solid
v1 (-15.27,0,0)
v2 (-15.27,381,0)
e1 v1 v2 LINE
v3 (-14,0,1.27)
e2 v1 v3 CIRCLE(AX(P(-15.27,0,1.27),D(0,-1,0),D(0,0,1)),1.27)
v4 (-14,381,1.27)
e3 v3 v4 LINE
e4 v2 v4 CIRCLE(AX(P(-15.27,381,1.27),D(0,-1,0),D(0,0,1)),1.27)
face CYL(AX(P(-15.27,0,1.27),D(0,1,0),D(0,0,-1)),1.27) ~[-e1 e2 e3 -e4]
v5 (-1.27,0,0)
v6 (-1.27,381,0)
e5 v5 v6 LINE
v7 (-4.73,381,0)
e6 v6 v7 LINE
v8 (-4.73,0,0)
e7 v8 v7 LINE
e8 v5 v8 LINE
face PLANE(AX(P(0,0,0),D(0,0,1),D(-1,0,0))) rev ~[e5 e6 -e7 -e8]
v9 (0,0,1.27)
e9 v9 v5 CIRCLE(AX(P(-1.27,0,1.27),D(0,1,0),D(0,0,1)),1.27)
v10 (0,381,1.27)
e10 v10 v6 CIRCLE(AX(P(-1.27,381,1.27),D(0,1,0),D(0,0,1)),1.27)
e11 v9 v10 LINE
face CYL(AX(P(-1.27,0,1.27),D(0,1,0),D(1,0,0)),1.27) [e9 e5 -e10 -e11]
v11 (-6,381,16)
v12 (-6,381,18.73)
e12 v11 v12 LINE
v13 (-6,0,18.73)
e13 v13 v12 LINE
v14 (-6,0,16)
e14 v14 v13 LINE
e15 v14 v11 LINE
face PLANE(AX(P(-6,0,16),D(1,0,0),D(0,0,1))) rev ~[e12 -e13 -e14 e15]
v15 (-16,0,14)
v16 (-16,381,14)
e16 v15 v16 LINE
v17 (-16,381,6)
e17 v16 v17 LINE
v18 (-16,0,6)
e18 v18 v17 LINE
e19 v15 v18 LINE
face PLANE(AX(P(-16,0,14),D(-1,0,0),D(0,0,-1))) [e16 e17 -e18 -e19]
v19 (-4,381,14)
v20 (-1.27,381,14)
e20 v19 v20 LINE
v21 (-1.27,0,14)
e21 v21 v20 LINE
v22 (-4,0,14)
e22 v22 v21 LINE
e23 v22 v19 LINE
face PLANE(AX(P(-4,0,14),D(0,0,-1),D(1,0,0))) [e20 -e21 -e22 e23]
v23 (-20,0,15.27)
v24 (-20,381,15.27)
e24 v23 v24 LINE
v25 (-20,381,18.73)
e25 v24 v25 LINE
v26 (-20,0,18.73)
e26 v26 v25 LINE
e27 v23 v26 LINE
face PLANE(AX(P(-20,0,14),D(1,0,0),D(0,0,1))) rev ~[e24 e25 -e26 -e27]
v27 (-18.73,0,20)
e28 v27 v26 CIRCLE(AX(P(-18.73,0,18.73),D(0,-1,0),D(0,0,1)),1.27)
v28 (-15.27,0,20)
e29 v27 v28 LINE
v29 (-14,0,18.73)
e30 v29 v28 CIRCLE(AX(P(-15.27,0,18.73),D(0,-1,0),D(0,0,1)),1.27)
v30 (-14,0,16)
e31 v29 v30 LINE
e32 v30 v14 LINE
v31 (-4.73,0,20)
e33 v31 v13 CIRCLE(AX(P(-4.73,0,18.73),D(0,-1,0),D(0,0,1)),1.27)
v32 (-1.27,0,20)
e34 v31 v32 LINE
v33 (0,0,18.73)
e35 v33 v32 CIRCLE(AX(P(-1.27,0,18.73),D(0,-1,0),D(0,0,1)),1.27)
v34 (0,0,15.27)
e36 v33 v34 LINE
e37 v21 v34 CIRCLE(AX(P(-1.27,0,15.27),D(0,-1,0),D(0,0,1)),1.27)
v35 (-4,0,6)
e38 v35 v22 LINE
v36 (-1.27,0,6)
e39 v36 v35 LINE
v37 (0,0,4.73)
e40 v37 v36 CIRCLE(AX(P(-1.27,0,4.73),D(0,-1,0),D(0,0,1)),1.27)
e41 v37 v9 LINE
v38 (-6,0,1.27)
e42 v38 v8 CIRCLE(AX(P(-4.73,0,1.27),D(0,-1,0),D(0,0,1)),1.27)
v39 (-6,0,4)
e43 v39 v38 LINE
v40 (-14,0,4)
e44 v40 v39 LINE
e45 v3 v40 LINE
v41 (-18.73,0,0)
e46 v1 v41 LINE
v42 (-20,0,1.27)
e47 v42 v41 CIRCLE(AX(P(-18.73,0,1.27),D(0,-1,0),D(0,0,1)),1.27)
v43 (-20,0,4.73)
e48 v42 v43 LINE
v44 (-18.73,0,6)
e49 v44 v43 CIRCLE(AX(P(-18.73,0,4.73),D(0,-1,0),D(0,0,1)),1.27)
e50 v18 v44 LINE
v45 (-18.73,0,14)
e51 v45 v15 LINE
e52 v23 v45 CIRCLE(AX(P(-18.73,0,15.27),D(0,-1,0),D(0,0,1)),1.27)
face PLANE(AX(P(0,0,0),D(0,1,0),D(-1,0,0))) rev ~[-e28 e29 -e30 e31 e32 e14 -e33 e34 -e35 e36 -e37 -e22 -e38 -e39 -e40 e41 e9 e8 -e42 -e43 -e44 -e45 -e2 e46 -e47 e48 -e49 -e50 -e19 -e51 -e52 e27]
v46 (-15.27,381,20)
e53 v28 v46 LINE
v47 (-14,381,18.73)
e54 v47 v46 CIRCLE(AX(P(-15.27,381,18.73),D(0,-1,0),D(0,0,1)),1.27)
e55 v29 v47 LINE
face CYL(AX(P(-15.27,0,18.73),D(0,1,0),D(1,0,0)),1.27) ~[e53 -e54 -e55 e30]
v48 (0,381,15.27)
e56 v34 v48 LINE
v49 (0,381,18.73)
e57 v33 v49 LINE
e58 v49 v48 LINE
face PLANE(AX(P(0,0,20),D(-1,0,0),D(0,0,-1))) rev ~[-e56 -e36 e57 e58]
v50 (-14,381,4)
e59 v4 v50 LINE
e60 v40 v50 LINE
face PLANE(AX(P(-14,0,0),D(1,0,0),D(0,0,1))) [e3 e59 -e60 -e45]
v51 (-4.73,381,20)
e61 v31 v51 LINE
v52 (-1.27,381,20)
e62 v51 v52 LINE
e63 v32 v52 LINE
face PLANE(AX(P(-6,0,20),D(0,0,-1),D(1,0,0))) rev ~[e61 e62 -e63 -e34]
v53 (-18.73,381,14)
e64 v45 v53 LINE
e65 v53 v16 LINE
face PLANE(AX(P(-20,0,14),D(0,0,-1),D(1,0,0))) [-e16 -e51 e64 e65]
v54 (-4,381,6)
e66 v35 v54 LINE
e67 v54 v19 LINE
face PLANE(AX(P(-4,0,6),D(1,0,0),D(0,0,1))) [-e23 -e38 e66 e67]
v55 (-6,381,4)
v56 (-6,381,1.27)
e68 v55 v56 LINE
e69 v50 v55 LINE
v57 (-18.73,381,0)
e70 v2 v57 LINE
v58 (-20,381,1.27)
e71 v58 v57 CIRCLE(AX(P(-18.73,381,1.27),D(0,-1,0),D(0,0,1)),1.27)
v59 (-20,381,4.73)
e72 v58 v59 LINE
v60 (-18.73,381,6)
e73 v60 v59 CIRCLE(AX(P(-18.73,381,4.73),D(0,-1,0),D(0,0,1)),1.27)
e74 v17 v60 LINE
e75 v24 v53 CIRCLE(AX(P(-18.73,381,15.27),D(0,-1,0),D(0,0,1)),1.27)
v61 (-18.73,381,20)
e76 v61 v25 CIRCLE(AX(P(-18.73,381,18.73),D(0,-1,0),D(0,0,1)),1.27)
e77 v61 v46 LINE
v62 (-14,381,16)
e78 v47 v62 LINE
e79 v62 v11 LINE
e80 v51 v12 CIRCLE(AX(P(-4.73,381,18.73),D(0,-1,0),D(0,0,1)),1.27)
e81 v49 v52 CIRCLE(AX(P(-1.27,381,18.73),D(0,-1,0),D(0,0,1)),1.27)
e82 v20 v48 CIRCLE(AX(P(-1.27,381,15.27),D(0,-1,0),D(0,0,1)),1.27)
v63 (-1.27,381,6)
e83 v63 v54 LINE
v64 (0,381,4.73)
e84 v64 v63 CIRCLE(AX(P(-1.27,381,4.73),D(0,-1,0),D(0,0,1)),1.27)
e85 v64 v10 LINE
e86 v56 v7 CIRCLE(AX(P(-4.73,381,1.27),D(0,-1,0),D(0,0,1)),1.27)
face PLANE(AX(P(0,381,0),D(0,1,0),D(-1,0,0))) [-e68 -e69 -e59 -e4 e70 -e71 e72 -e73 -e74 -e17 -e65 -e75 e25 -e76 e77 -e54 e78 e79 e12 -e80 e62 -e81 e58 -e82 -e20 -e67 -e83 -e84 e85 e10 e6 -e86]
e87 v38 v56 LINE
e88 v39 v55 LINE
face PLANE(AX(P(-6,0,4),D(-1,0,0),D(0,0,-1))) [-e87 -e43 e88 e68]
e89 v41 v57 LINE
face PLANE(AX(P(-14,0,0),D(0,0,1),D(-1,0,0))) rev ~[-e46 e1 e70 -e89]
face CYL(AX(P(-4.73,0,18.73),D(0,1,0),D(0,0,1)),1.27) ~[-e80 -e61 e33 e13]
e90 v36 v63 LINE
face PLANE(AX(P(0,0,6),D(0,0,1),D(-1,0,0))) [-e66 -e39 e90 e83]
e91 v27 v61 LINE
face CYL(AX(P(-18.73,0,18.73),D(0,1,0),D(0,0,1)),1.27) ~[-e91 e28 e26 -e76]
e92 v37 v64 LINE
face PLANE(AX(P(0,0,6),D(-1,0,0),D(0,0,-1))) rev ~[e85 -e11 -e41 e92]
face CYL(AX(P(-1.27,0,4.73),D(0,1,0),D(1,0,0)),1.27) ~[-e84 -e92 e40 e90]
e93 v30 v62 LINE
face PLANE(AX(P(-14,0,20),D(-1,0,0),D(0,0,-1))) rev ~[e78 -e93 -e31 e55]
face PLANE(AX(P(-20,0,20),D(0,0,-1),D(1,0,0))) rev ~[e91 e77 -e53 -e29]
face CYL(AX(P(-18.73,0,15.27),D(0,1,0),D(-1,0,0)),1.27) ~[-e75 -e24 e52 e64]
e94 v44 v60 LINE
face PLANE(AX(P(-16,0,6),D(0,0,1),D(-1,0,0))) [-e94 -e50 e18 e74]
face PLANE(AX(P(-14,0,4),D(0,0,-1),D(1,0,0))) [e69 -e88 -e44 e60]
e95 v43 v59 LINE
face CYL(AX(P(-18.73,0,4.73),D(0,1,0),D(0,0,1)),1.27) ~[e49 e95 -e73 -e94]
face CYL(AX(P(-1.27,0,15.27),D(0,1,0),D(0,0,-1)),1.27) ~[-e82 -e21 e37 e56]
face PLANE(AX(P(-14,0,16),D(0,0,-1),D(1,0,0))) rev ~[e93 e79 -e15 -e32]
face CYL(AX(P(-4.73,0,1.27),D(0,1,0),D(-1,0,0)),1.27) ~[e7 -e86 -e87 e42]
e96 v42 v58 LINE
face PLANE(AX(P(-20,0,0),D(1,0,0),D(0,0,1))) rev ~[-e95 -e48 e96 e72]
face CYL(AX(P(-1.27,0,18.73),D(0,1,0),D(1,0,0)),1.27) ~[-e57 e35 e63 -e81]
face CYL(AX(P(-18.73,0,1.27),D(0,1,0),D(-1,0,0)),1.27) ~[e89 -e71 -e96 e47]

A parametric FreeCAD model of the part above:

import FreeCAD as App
import Part
import Sketcher

V = App.Vector


def edges_at(feature, points):
    """Names of the edges that pass closest to the given points."""
    edges = feature.Shape.Edges
    near = lambda p: min(range(len(edges)), key=lambda i: edges[i].distToShape(Part.Vertex(*p))[0])
    return sorted({f"Edge{near(p) + 1}" for p in points})


def add_polygon(sketch, points):
    """Adds a closed chain of lines whose ends are joined by coincident constraints."""
    first, n = sketch.GeometryCount, len(points)
    for a, b in zip(points, points[1:] + points[:1]):
        sketch.addGeometry(Part.LineSegment(App.Vector(*a, 0), App.Vector(*b, 0)), False)
    for i in range(n):
        sketch.addConstraint(Sketcher.Constraint("Coincident", first + i, 2, first + (i + 1) % n, 1))

doc = App.newDocument("Part")
params = doc.addObject("Spreadsheet::Sheet", "Params")
for row, (alias, value) in enumerate([
    ("sketch1_width", "6 mm"),
    ("sketch1_width2", "8 mm"),
    ("sketch1_width3", "4 mm"),
    ("pad1_length", "381 mm"),
    ("fillet_radius", "1.27 mm"),
], start=1):
    params.set(f"A{row}", alias)
    params.set(f"B{row}", "=" + value)
    params.setAlias(f"B{row}", alias)

body = doc.addObject("PartDesign::Body", "Body")

# Sketch on XZ plane
sketch1 = body.newObject("Sketcher::SketchObject", "Sketch")
sketch1.AttachmentSupport = (doc.getObject("XZ_Plane"), [""])
sketch1.MapMode = "FlatFace"
add_polygon(sketch1, [(0, 6), (0, 0), (-6, 0), (-6, 4), (-14, 4), (-14, 0), (-20, 0), (-20, 6), (-16, 6), (-16, 14), (-20, 14), (-20, 20), (-14, 20), (-14, 16), (-6, 16), (-6, 20), (0, 20), (0, 14), (-4, 14), (-4, 6)])  # lines 0-19
sketch1.addConstraint([
    Sketcher.Constraint("Vertical", 0),
    Sketcher.Constraint("Horizontal", 1),
    Sketcher.Constraint("Vertical", 2),
    Sketcher.Constraint("Horizontal", 3),
    Sketcher.Constraint("Vertical", 4),
    Sketcher.Constraint("Horizontal", 5),
    Sketcher.Constraint("Vertical", 6),
    Sketcher.Constraint("Horizontal", 7),
    Sketcher.Constraint("Vertical", 8),
    Sketcher.Constraint("Horizontal", 9),
    Sketcher.Constraint("Vertical", 10),
    Sketcher.Constraint("Horizontal", 11),
    Sketcher.Constraint("Vertical", 12),
    Sketcher.Constraint("Horizontal", 13),
    Sketcher.Constraint("Vertical", 14),
    Sketcher.Constraint("Horizontal", 15),
    Sketcher.Constraint("Vertical", 16),
    Sketcher.Constraint("Horizontal", 17),
    Sketcher.Constraint("Vertical", 18),
    Sketcher.Constraint("Horizontal", 19),
    Sketcher.Constraint("Coincident", 0, 2, -1, 1),
    Sketcher.Constraint("PointOnObject", 4, 2, -1),
    Sketcher.Constraint("PointOnObject", 15, 2, -2),
    Sketcher.Constraint("Horizontal", 11, 2, 14, 2),
    Sketcher.Constraint("Horizontal", 9, 2, 16, 2),
    Sketcher.Constraint("Horizontal", 7, 2, 18, 2),
    Sketcher.Constraint("Vertical", 6, 2, 9, 2),
    Sketcher.Constraint("Vertical", 4, 2, 11, 2),
    Sketcher.Constraint("Vertical", 2, 2, 13, 2),
    Sketcher.Constraint("Equal", 1, 5),
    Sketcher.Constraint("Equal", 9, 17),
    Sketcher.Constraint("Equal", 15, 0),
    Sketcher.Constraint("Equal", 19, 2),
    Sketcher.Constraint("Equal", 13, 8),
    Sketcher.Constraint("Equal", 6, 10),
    Sketcher.Constraint("Equal", 4, 12),
    Sketcher.Constraint("DistanceX", 1, 2, 1, 1, 6.0),
    Sketcher.Constraint("DistanceX", 3, 2, 3, 1, 8.0),
    Sketcher.Constraint("DistanceX", 7, 1, 7, 2, 4.0),
])
sketch1.setExpression("Constraints[56]", "Params.sketch1_width")
sketch1.setExpression("Constraints[57]", "Params.sketch1_width2")
sketch1.setExpression("Constraints[58]", "Params.sketch1_width3")
pad1 = body.newObject("PartDesign::Pad", "Pad")
pad1.Profile = sketch1
pad1.setExpression("Length", "Params.pad1_length")
pad1.Reversed = True
doc.recompute()

fillet = body.newObject("PartDesign::Fillet", "Fillet")
fillet.Base = (pad1, edges_at(pad1, [
    (0, 190.5, 20),
    (0, 190.5, 14),
    (-6, 190.5, 20),
    (-14, 190.5, 20),
    (-20, 190.5, 20),
    (-20, 190.5, 14),
    (0, 190.5, 6),
    (0, 190.5, 0),
    (-6, 190.5, 0),
    (-14, 190.5, 0),
    (-20, 190.5, 0),
    (-20, 190.5, 6),
]))
fillet.setExpression("Radius", "Params.fillet_radius")

doc.recompute()
